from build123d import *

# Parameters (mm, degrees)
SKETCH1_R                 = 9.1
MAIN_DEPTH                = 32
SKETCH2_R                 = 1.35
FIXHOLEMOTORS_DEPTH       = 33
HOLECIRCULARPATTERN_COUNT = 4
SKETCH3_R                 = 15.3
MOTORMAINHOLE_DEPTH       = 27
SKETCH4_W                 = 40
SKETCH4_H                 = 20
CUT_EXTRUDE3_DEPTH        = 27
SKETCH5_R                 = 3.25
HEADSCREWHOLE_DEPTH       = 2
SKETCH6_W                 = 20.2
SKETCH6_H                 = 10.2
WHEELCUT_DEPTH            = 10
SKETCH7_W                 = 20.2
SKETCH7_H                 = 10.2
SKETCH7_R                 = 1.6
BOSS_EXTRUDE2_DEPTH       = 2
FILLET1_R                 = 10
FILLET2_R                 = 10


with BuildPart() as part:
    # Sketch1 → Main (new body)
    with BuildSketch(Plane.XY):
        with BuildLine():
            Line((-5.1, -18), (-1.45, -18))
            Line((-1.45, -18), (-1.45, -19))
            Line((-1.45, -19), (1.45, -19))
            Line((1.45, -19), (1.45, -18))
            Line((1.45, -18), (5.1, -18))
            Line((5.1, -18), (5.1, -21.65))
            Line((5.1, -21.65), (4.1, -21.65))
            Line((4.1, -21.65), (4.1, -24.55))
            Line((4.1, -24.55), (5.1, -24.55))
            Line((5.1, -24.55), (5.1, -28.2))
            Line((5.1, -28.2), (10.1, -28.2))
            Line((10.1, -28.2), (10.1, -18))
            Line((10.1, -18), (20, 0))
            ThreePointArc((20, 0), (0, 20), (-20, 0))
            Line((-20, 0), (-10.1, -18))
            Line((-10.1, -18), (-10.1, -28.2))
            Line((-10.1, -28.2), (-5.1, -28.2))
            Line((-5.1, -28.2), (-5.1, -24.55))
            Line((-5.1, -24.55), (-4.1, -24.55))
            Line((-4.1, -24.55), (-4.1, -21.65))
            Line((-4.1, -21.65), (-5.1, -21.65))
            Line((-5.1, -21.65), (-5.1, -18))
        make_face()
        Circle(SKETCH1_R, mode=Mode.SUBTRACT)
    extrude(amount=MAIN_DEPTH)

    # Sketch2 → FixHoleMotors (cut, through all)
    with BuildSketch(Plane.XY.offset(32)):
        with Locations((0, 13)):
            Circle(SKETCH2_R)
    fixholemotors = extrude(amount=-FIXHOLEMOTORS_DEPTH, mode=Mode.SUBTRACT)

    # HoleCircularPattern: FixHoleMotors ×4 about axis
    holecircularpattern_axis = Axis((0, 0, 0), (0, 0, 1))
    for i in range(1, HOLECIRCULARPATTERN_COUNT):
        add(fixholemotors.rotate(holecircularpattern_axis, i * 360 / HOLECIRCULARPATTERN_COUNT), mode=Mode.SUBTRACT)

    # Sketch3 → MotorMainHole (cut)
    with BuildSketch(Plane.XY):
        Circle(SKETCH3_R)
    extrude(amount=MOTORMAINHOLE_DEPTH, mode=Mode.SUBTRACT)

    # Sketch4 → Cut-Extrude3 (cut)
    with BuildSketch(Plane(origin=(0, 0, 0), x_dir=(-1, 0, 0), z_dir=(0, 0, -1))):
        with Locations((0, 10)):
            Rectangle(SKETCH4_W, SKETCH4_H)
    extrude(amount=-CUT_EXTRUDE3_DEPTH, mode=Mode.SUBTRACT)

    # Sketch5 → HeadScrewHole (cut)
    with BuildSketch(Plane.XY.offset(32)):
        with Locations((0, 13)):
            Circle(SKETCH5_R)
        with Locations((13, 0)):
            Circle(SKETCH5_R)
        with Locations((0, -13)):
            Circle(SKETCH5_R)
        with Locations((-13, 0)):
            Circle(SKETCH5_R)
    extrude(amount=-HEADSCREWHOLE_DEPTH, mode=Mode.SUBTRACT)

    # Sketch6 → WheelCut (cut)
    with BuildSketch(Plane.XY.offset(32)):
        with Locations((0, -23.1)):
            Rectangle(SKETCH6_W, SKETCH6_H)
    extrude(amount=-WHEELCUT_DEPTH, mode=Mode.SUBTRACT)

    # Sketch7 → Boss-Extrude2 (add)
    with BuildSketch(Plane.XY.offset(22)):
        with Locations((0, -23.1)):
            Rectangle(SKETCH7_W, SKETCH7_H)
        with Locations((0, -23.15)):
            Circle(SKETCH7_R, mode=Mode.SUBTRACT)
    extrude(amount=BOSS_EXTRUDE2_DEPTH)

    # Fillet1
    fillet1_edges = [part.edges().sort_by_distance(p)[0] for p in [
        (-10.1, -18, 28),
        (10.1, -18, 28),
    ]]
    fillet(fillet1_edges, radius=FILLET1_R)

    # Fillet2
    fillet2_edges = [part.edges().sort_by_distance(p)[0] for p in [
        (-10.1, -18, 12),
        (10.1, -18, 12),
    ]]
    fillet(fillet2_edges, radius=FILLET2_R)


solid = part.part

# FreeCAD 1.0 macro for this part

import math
import FreeCAD as App
import Part
import Sketcher

V = App.Vector
Q = App.Units.Quantity


def edges_at(feature, points):
    """Names of the edges that pass closest to the given points."""
    edges = feature.Shape.Edges
    near = lambda p: min(range(len(edges)), key=lambda i: edges[i].distToShape(Part.Vertex(*p))[0])
    return sorted({f"Edge{near(p) + 1}" for p in points})

doc = App.newDocument("Part")
params = doc.addObject("Spreadsheet::Sheet", "Params")
for row, (alias, value) in enumerate([
    ("sketch1_radius", "20 mm"),
    ("sketch1_diameter", "18.2 mm"),
    ("sketch1_width", "1 mm"),
    ("sketch1_width2", "5 mm"),
    ("sketch1_width3", "2.9 mm"),
    ("pad1_length", "32 mm"),
    ("sketch2_diameter", "2.7 mm"),
    ("sketch3_diameter", "30.6 mm"),
    ("pocket2_length", "27 mm"),
    ("sketch4_width", "40 mm"),
    ("sketch4_height", "20 mm"),
    ("pocket3_length", "27 mm"),
    ("sketch5_diameter", "6.5 mm"),
    ("pocket4_length", "2 mm"),
    ("sketch6_width", "20.2 mm"),
    ("sketch6_height", "10.2 mm"),
    ("pocket5_length", "10 mm"),
    ("sketch7_diameter", "3.2 mm"),
    ("sketch7_width", "20.2 mm"),
    ("sketch7_height", "10.2 mm"),
    ("pad2_length", "2 mm"),
    ("fillet_radius", "10 mm"),
    ("fillet2_radius", "10 mm"),
], start=1):
    params.set(f"A{row}", alias)
    params.set(f"B{row}", "=" + value)
    params.setAlias(f"B{row}", alias)

body = doc.addObject("PartDesign::Body", "Body")

# Sketch on XY plane
sketch1 = body.newObject("Sketcher::SketchObject", "Sketch")
sketch1.AttachmentSupport = (doc.getObject("XY_Plane"), [""])
sketch1.MapMode = "FlatFace"
sketch1.addGeometry(Part.LineSegment(V(-5.1, -18, 0), V(-1.45, -18, 0)), False)
sketch1.addGeometry(Part.LineSegment(V(-1.45, -18, 0), V(-1.45, -19, 0)), False)
sketch1.addGeometry(Part.LineSegment(V(-1.45, -19, 0), V(1.45, -19, 0)), False)
sketch1.addGeometry(Part.LineSegment(V(1.45, -19, 0), V(1.45, -18, 0)), False)
sketch1.addGeometry(Part.LineSegment(V(1.45, -18, 0), V(5.1, -18, 0)), False)
sketch1.addGeometry(Part.LineSegment(V(5.1, -18, 0), V(5.1, -21.65, 0)), False)
sketch1.addGeometry(Part.LineSegment(V(5.1, -21.65, 0), V(4.1, -21.65, 0)), False)
sketch1.addGeometry(Part.LineSegment(V(4.1, -21.65, 0), V(4.1, -24.55, 0)), False)
sketch1.addGeometry(Part.LineSegment(V(4.1, -24.55, 0), V(5.1, -24.55, 0)), False)
sketch1.addGeometry(Part.LineSegment(V(5.1, -24.55, 0), V(5.1, -28.2, 0)), False)
sketch1.addGeometry(Part.LineSegment(V(5.1, -28.2, 0), V(10.1, -28.2, 0)), False)
sketch1.addGeometry(Part.LineSegment(V(10.1, -28.2, 0), V(10.1, -18, 0)), False)
sketch1.addGeometry(Part.LineSegment(V(10.1, -18, 0), V(20, 0, 0)), False)
sketch1.addGeometry(Part.ArcOfCircle(Part.Circle(V(0, 0, 0), V(0, 0, 1), 20), math.radians(0), math.radians(180)), False)
sketch1.addGeometry(Part.LineSegment(V(-20, 0, 0), V(-10.1, -18, 0)), False)
sketch1.addGeometry(Part.LineSegment(V(-10.1, -18, 0), V(-10.1, -28.2, 0)), False)
sketch1.addGeometry(Part.LineSegment(V(-10.1, -28.2, 0), V(-5.1, -28.2, 0)), False)
sketch1.addGeometry(Part.LineSegment(V(-5.1, -28.2, 0), V(-5.1, -24.55, 0)), False)
sketch1.addGeometry(Part.LineSegment(V(-5.1, -24.55, 0), V(-4.1, -24.55, 0)), False)
sketch1.addGeometry(Part.LineSegment(V(-4.1, -24.55, 0), V(-4.1, -21.65, 0)), False)
sketch1.addGeometry(Part.LineSegment(V(-4.1, -21.65, 0), V(-5.1, -21.65, 0)), False)
sketch1.addGeometry(Part.LineSegment(V(-5.1, -21.65, 0), V(-5.1, -18, 0)), False)
sketch1.addGeometry(Part.Circle(V(0, 0, 0), V(0, 0, 1), 9.1), False)
sketch1.addConstraint(Sketcher.Constraint("Coincident", 0, 2, 1, 1))
sketch1.addConstraint(Sketcher.Constraint("Coincident", 1, 2, 2, 1))
sketch1.addConstraint(Sketcher.Constraint("Coincident", 2, 2, 3, 1))
sketch1.addConstraint(Sketcher.Constraint("Coincident", 3, 2, 4, 1))
sketch1.addConstraint(Sketcher.Constraint("Coincident", 4, 2, 5, 1))
sketch1.addConstraint(Sketcher.Constraint("Coincident", 5, 2, 6, 1))
sketch1.addConstraint(Sketcher.Constraint("Coincident", 6, 2, 7, 1))
sketch1.addConstraint(Sketcher.Constraint("Coincident", 7, 2, 8, 1))
sketch1.addConstraint(Sketcher.Constraint("Coincident", 8, 2, 9, 1))
sketch1.addConstraint(Sketcher.Constraint("Coincident", 9, 2, 10, 1))
sketch1.addConstraint(Sketcher.Constraint("Coincident", 10, 2, 11, 1))
sketch1.addConstraint(Sketcher.Constraint("Coincident", 11, 2, 12, 1))
sketch1.addConstraint(Sketcher.Constraint("Coincident", 12, 2, 13, 1))
sketch1.addConstraint(Sketcher.Constraint("Coincident", 13, 2, 14, 1))
sketch1.addConstraint(Sketcher.Constraint("Coincident", 14, 2, 15, 1))
sketch1.addConstraint(Sketcher.Constraint("Coincident", 15, 2, 16, 1))
sketch1.addConstraint(Sketcher.Constraint("Coincident", 16, 2, 17, 1))
sketch1.addConstraint(Sketcher.Constraint("Coincident", 17, 2, 18, 1))
sketch1.addConstraint(Sketcher.Constraint("Coincident", 18, 2, 19, 1))
sketch1.addConstraint(Sketcher.Constraint("Coincident", 19, 2, 20, 1))
sketch1.addConstraint(Sketcher.Constraint("Coincident", 20, 2, 21, 1))
sketch1.addConstraint(Sketcher.Constraint("Coincident", 21, 2, 0, 1))
sketch1.addConstraint(Sketcher.Constraint("Horizontal", 0))
sketch1.addConstraint(Sketcher.Constraint("Vertical", 1))
sketch1.addConstraint(Sketcher.Constraint("Horizontal", 2))
sketch1.addConstraint(Sketcher.Constraint("Vertical", 3))
sketch1.addConstraint(Sketcher.Constraint("Horizontal", 4))
sketch1.addConstraint(Sketcher.Constraint("Vertical", 5))
sketch1.addConstraint(Sketcher.Constraint("Horizontal", 6))
sketch1.addConstraint(Sketcher.Constraint("Vertical", 7))
sketch1.addConstraint(Sketcher.Constraint("Horizontal", 8))
sketch1.addConstraint(Sketcher.Constraint("Vertical", 9))
sketch1.addConstraint(Sketcher.Constraint("Horizontal", 10))
sketch1.addConstraint(Sketcher.Constraint("Vertical", 11))
sketch1.addConstraint(Sketcher.Constraint("Vertical", 15))
sketch1.addConstraint(Sketcher.Constraint("Horizontal", 16))
sketch1.addConstraint(Sketcher.Constraint("Vertical", 17))
sketch1.addConstraint(Sketcher.Constraint("Horizontal", 18))
sketch1.addConstraint(Sketcher.Constraint("Vertical", 19))
sketch1.addConstraint(Sketcher.Constraint("Horizontal", 20))
sketch1.addConstraint(Sketcher.Constraint("Vertical", 21))
sketch1.addConstraint(Sketcher.Constraint("Coincident", 13, 3, -1, 1))
sketch1.addConstraint(Sketcher.Constraint("Coincident", 22, 3, -1, 1))
sketch1.addConstraint(Sketcher.Constraint("Symmetric", 0, 2, 3, 2, -2))
sketch1.addConstraint(Sketcher.Constraint("Symmetric", 11, 2, 14, 2, -2))
sketch1.addConstraint(Sketcher.Constraint("Symmetric", 9, 2, 16, 2, -2))
sketch1.addConstraint(Sketcher.Constraint("Symmetric", 7, 2, 18, 2, -2))
sketch1.addConstraint(Sketcher.Constraint("Symmetric", 5, 2, 20, 2, -2))
sketch1.addConstraint(Sketcher.Constraint("PointOnObject", 12, 2, -1))
sketch1.addConstraint(Sketcher.Constraint("PointOnObject", 13, 2, -1))
sketch1.addConstraint(Sketcher.Constraint("Horizontal", 4, 2, 11, 2))
sketch1.addConstraint(Sketcher.Constraint("Vertical", 5, 2, 8, 2))
sketch1.addConstraint(Sketcher.Constraint("Equal", 20, 1))
sketch1.addConstraint(Sketcher.Constraint("Equal", 4, 5))
sketch1.addConstraint(Sketcher.Constraint("Equal", 2, 7))
sketch1.addConstraint(Sketcher.Constraint("Equal", 5, 9))
sketch1.addConstraint(Sketcher.Constraint("Radius", 13, Q("20 mm")))
sketch1.addConstraint(Sketcher.Constraint("Diameter", 22, Q("18.2 mm")))
sketch1.addConstraint(Sketcher.Constraint("DistanceX", 6, 2, 6, 1, Q("1 mm")))
sketch1.addConstraint(Sketcher.Constraint("DistanceX", 10, 1, 10, 2, Q("5 mm")))
sketch1.addConstraint(Sketcher.Constraint("DistanceX", 2, 1, 2, 2, Q("2.9 mm")))
sketch1.addConstraint(Sketcher.Constraint("DistanceY", 11, 1, 11, 2, Q("10.2 mm")))
sketch1.addConstraint(Sketcher.Constraint("DistanceY", 0, 2, -1, 1, Q("18 mm")))
sketch1.setExpression("Constraints[56]", "Params.sketch1_radius")
sketch1.setExpression("Constraints[57]", "Params.sketch1_diameter")
sketch1.setExpression("Constraints[58]", "Params.sketch1_width")
sketch1.setExpression("Constraints[59]", "Params.sketch1_width2")
sketch1.setExpression("Constraints[60]", "Params.sketch1_width3")
pad1 = body.newObject("PartDesign::Pad", "Pad")
pad1.Profile = sketch1
pad1.setExpression("Length", "Params.pad1_length")

# Sketch on XY plane
sketch2 = body.newObject("Sketcher::SketchObject", "Sketch001")
sketch2.AttachmentSupport = (doc.getObject("XY_Plane"), [""])
sketch2.MapMode = "FlatFace"
sketch2.AttachmentOffset = App.Placement(V(0, 0, 32), App.Rotation())
sketch2.addGeometry(Part.Circle(V(0, 13, 0), V(0, 0, 1), 1.35), False)
sketch2.addConstraint(Sketcher.Constraint("PointOnObject", 0, 3, -2))
sketch2.addConstraint(Sketcher.Constraint("Diameter", 0, Q("2.7 mm")))
sketch2.addConstraint(Sketcher.Constraint("DistanceY", -1, 1, 0, 3, Q("13 mm")))
sketch2.setExpression("Constraints[1]", "Params.sketch2_diameter")
pocket1 = body.newObject("PartDesign::Pocket", "Pocket")
pocket1.Profile = sketch2
pocket1.Type = "ThroughAll"
doc.recompute()

polarpattern = body.newObject("PartDesign::PolarPattern", "PolarPattern")
polarpattern.Originals = [pocket1]
polarpattern.Axis = (doc.getObject("Z_Axis"), [""])
polarpattern.Angle = 360
polarpattern.Occurrences = 4
body.Tip = polarpattern

# Sketch on XY plane
sketch3 = body.newObject("Sketcher::SketchObject", "Sketch002")
sketch3.AttachmentSupport = (doc.getObject("XY_Plane"), [""])
sketch3.MapMode = "FlatFace"
sketch3.addGeometry(Part.Circle(V(0, 0, 0), V(0, 0, 1), 15.3), False)
sketch3.addConstraint(Sketcher.Constraint("Coincident", 0, 3, -1, 1))
sketch3.addConstraint(Sketcher.Constraint("Diameter", 0, Q("30.6 mm")))
sketch3.setExpression("Constraints[1]", "Params.sketch3_diameter")
pocket2 = body.newObject("PartDesign::Pocket", "Pocket001")
pocket2.Profile = sketch3
pocket2.setExpression("Length", "Params.pocket2_length")
pocket2.Reversed = True

# Sketch on XY plane
sketch4 = body.newObject("Sketcher::SketchObject", "Sketch003")
sketch4.AttachmentSupport = (doc.getObject("XY_Plane"), [""])
sketch4.MapMode = "FlatFace"
sketch4.addGeometry(Part.LineSegment(V(20, 20, 0), V(20, 0, 0)), False)
sketch4.addGeometry(Part.LineSegment(V(20, 0, 0), V(-20, 0, 0)), False)
sketch4.addGeometry(Part.LineSegment(V(-20, 0, 0), V(-20, 20, 0)), False)
sketch4.addGeometry(Part.LineSegment(V(-20, 20, 0), V(20, 20, 0)), False)
sketch4.addConstraint(Sketcher.Constraint("Coincident", 0, 2, 1, 1))
sketch4.addConstraint(Sketcher.Constraint("Coincident", 1, 2, 2, 1))
sketch4.addConstraint(Sketcher.Constraint("Coincident", 2, 2, 3, 1))
sketch4.addConstraint(Sketcher.Constraint("Coincident", 3, 2, 0, 1))
sketch4.addConstraint(Sketcher.Constraint("Vertical", 0))
sketch4.addConstraint(Sketcher.Constraint("Horizontal", 1))
sketch4.addConstraint(Sketcher.Constraint("Vertical", 2))
sketch4.addConstraint(Sketcher.Constraint("Horizontal", 3))
sketch4.addConstraint(Sketcher.Constraint("Symmetric", 0, 2, 1, 2, -1, 1))
sketch4.addConstraint(Sketcher.Constraint("DistanceX", 1, 2, 1, 1, Q("40 mm")))
sketch4.addConstraint(Sketcher.Constraint("DistanceY", 0, 2, 0, 1, Q("20 mm")))
sketch4.setExpression("Constraints[9]", "Params.sketch4_width")
sketch4.setExpression("Constraints[10]", "Params.sketch4_height")
pocket3 = body.newObject("PartDesign::Pocket", "Pocket002")
pocket3.Profile = sketch4
pocket3.setExpression("Length", "Params.pocket3_length")
pocket3.Reversed = True

# Sketch on XY plane
sketch5 = body.newObject("Sketcher::SketchObject", "Sketch004")
sketch5.AttachmentSupport = (doc.getObject("XY_Plane"), [""])
sketch5.MapMode = "FlatFace"
sketch5.AttachmentOffset = App.Placement(V(0, 0, 32), App.Rotation())
sketch5.addGeometry(Part.Circle(V(0, 13, 0), V(0, 0, 1), 3.25), False)
sketch5.addGeometry(Part.Circle(V(13, 0, 0), V(0, 0, 1), 3.25), False)
sketch5.addGeometry(Part.Circle(V(0, -13, 0), V(0, 0, 1), 3.25), False)
sketch5.addGeometry(Part.Circle(V(-13, 0, 0), V(0, 0, 1), 3.25), False)
sketch5.addConstraint(Sketcher.Constraint("Equal", 0, 1))
sketch5.addConstraint(Sketcher.Constraint("Equal", 1, 2))
sketch5.addConstraint(Sketcher.Constraint("Equal", 2, 3))
sketch5.addConstraint(Sketcher.Constraint("Symmetric", 0, 3, 2, 3, -1, 1))
sketch5.addConstraint(Sketcher.Constraint("Symmetric", 1, 3, 3, 3, -1, 1))
sketch5.addConstraint(Sketcher.Constraint("PointOnObject", 0, 3, -2))
sketch5.addConstraint(Sketcher.Constraint("PointOnObject", 1, 3, -1))
sketch5.addConstraint(Sketcher.Constraint("Diameter", 0, Q("6.5 mm")))
sketch5.addConstraint(Sketcher.Constraint("DistanceY", -1, 1, 0, 3, Q("13 mm")))
sketch5.addConstraint(Sketcher.Constraint("DistanceX", -1, 1, 1, 3, Q("13 mm")))
sketch5.setExpression("Constraints[7]", "Params.sketch5_diameter")
pocket4 = body.newObject("PartDesign::Pocket", "Pocket003")
pocket4.Profile = sketch5
pocket4.setExpression("Length", "Params.pocket4_length")

# Sketch on XY plane
sketch6 = body.newObject("Sketcher::SketchObject", "Sketch005")
sketch6.AttachmentSupport = (doc.getObject("XY_Plane"), [""])
sketch6.MapMode = "FlatFace"
sketch6.AttachmentOffset = App.Placement(V(0, 0, 32), App.Rotation())
sketch6.addGeometry(Part.LineSegment(V(-10.1, -18, 0), V(-10.1, -28.2, 0)), False)
sketch6.addGeometry(Part.LineSegment(V(-10.1, -28.2, 0), V(10.1, -28.2, 0)), False)
sketch6.addGeometry(Part.LineSegment(V(10.1, -28.2, 0), V(10.1, -18, 0)), False)
sketch6.addGeometry(Part.LineSegment(V(10.1, -18, 0), V(-10.1, -18, 0)), False)
sketch6.addConstraint(Sketcher.Constraint("Coincident", 0, 2, 1, 1))
sketch6.addConstraint(Sketcher.Constraint("Coincident", 1, 2, 2, 1))
sketch6.addConstraint(Sketcher.Constraint("Coincident", 2, 2, 3, 1))
sketch6.addConstraint(Sketcher.Constraint("Coincident", 3, 2, 0, 1))
sketch6.addConstraint(Sketcher.Constraint("Vertical", 0))
sketch6.addConstraint(Sketcher.Constraint("Horizontal", 1))
sketch6.addConstraint(Sketcher.Constraint("Vertical", 2))
sketch6.addConstraint(Sketcher.Constraint("Horizontal", 3))
sketch6.addConstraint(Sketcher.Constraint("DistanceX", 1, 1, 1, 2, Q("20.2 mm")))
sketch6.addConstraint(Sketcher.Constraint("DistanceY", 0, 2, 0, 1, Q("10.2 mm")))
sketch6.addConstraint(Sketcher.Constraint("DistanceY", 2, 2, -1, 1, Q("18 mm")))
sketch6.addConstraint(Sketcher.Constraint("DistanceX", 0, 2, -1, 1, Q("10.1 mm")))
sketch6.setExpression("Constraints[8]", "Params.sketch6_width")
sketch6.setExpression("Constraints[9]", "Params.sketch6_height")
pocket5 = body.newObject("PartDesign::Pocket", "Pocket004")
pocket5.Profile = sketch6
pocket5.setExpression("Length", "Params.pocket5_length")

# Sketch on XY plane
sketch7 = body.newObject("Sketcher::SketchObject", "Sketch006")
sketch7.AttachmentSupport = (doc.getObject("XY_Plane"), [""])
sketch7.MapMode = "FlatFace"
sketch7.AttachmentOffset = App.Placement(V(0, 0, 22), App.Rotation())
sketch7.addGeometry(Part.LineSegment(V(-10.1, -18, 0), V(-10.1, -28.2, 0)), False)
sketch7.addGeometry(Part.LineSegment(V(-10.1, -28.2, 0), V(10.1, -28.2, 0)), False)
sketch7.addGeometry(Part.LineSegment(V(10.1, -28.2, 0), V(10.1, -18, 0)), False)
sketch7.addGeometry(Part.LineSegment(V(10.1, -18, 0), V(-10.1, -18, 0)), False)
sketch7.addGeometry(Part.Circle(V(0, -23.15, 0), V(0, 0, 1), 1.6), False)
sketch7.addConstraint(Sketcher.Constraint("Coincident", 0, 2, 1, 1))
sketch7.addConstraint(Sketcher.Constraint("Coincident", 1, 2, 2, 1))
sketch7.addConstraint(Sketcher.Constraint("Coincident", 2, 2, 3, 1))
sketch7.addConstraint(Sketcher.Constraint("Coincident", 3, 2, 0, 1))
sketch7.addConstraint(Sketcher.Constraint("Vertical", 0))
sketch7.addConstraint(Sketcher.Constraint("Horizontal", 1))
sketch7.addConstraint(Sketcher.Constraint("Vertical", 2))
sketch7.addConstraint(Sketcher.Constraint("Horizontal", 3))
sketch7.addConstraint(Sketcher.Constraint("PointOnObject", 4, 3, -2))
sketch7.addConstraint(Sketcher.Constraint("Diameter", 4, Q("3.2 mm")))
sketch7.addConstraint(Sketcher.Constraint("DistanceX", 1, 1, 1, 2, Q("20.2 mm")))
sketch7.addConstraint(Sketcher.Constraint("DistanceY", 0, 2, 0, 1, Q("10.2 mm")))
sketch7.addConstraint(Sketcher.Constraint("DistanceY", 2, 2, -1, 1, Q("18 mm")))
sketch7.addConstraint(Sketcher.Constraint("DistanceX", 0, 2, -1, 1, Q("10.1 mm")))
sketch7.addConstraint(Sketcher.Constraint("DistanceY", 4, 3, -1, 1, Q("23.15 mm")))
sketch7.setExpression("Constraints[9]", "Params.sketch7_diameter")
sketch7.setExpression("Constraints[10]", "Params.sketch7_width")
sketch7.setExpression("Constraints[11]", "Params.sketch7_height")
pad2 = body.newObject("PartDesign::Pad", "Pad001")
pad2.Profile = sketch7
pad2.setExpression("Length", "Params.pad2_length")
doc.recompute()

fillet = body.newObject("PartDesign::Fillet", "Fillet")
fillet.Base = (pad2, edges_at(pad2, [(-10.1, -18, 28), (10.1, -18, 28)]))
fillet.setExpression("Radius", "Params.fillet_radius")
doc.recompute()

fillet2 = body.newObject("PartDesign::Fillet", "Fillet001")
fillet2.Base = (fillet, edges_at(fillet, [(-10.1, -18, 12), (10.1, -18, 12)]))
fillet2.setExpression("Radius", "Params.fillet2_radius")

doc.recompute()
